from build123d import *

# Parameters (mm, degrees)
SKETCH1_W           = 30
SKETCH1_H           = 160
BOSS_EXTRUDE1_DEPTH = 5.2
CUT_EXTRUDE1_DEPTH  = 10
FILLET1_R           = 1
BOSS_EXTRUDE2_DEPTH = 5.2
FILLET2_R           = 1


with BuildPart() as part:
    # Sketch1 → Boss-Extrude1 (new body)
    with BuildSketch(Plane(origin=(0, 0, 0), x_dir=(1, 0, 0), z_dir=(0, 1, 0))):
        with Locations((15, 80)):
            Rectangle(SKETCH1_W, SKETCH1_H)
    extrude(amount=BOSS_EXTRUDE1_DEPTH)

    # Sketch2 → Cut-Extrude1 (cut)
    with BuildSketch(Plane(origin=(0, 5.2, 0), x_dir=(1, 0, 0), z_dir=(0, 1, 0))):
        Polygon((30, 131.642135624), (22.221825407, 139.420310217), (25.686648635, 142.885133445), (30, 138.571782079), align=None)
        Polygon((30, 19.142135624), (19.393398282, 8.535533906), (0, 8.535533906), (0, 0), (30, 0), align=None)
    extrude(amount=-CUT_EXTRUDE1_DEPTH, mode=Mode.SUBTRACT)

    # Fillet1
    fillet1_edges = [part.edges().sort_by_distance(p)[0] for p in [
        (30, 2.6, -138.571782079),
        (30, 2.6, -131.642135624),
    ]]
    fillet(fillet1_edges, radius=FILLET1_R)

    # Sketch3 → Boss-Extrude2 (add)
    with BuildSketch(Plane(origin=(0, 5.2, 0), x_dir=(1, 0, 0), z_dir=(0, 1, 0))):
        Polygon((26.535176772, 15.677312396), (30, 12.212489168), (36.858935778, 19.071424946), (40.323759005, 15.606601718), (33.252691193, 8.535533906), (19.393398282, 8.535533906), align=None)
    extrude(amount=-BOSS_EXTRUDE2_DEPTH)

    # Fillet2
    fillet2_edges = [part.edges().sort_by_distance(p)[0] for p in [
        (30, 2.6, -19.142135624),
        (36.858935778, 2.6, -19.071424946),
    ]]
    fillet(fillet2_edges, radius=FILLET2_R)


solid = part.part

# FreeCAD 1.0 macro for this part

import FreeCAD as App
import Part
import Sketcher
Q = App.Units.Quantity


def edges_at(feature, points):
    """Names of the edges that pass closest to the given points."""
    edges = feature.Shape.Edges
    near = lambda p: min(range(len(edges)), key=lambda i: edges[i].distToShape(Part.Vertex(*p))[0])
    return sorted({f"Edge{near(p) + 1}" for p in points})


def add_polygon(sketch, points):
    """Adds a closed chain of lines whose ends are joined by coincident constraints."""
    first, n = sketch.GeometryCount, len(points)
    for a, b in zip(points, points[1:] + points[:1]):
        sketch.addGeometry(Part.LineSegment(App.Vector(*a, 0), App.Vector(*b, 0)), False)
    for i in range(n):
        sketch.addConstraint(Sketcher.Constraint("Coincident", first + i, 2, first + (i + 1) % n, 1))

doc = App.newDocument("Part")
body = doc.addObject("PartDesign::Body", "Body")

# Sketch on XZ plane
sketch1 = doc.addObject("Sketcher::SketchObject", "Sketch")
body.addObject(sketch1)
sketch1.AttachmentSupport = (doc.XZ_Plane, [""])
sketch1.MapMode = "FlatFace"
add_polygon(sketch1, [(0, -160), (0, 0), (30, 0), (30, -160)])  # lines 0-3
sketch1.addConstraint([
    Sketcher.Constraint("Vertical", 0),
    Sketcher.Constraint("Horizontal", 1),
    Sketcher.Constraint("Vertical", 2),
    Sketcher.Constraint("Horizontal", 3),
    Sketcher.Constraint("Coincident", 0, 2, -1, 1),
    Sketcher.Constraint("DistanceX", 1, 1, 1, 2, Q("30 mm")),
    Sketcher.Constraint("DistanceY", 0, 1, 0, 2, Q("160 mm")),
])
pad1 = doc.addObject("PartDesign::Pad", "Pad")
body.addObject(pad1)
pad1.Profile = sketch1
pad1.Length = 5.2
pad1.Reversed = True

# Sketch on XZ plane
sketch2 = doc.addObject("Sketcher::SketchObject", "Sketch001")
body.addObject(sketch2)
sketch2.AttachmentSupport = (doc.XZ_Plane, [""])
sketch2.MapMode = "FlatFace"
sketch2.AttachmentOffset = App.Placement(App.Vector(0, 0, -5.2), App.Rotation())
add_polygon(sketch2, [(22.221825, -139.42031), (30, -131.642136), (30, -138.571782), (25.686649, -142.885133)])  # lines 0-3
add_polygon(sketch2, [(30, -19.142136), (19.393398, -8.535534), (0, -8.535534), (0, 0), (30, 0)])  # lines 4-8
sketch2.addConstraint([
    Sketcher.Constraint("Vertical", 1),
    Sketcher.Constraint("Horizontal", 5),
    Sketcher.Constraint("Vertical", 6),
    Sketcher.Constraint("Horizontal", 7),
    Sketcher.Constraint("Vertical", 8),
    Sketcher.Constraint("Coincident", 6, 2, -1, 1),
    Sketcher.Constraint("Parallel", 0, 2),
    Sketcher.Constraint("Perpendicular", 2, 3),
    Sketcher.Constraint("Parallel", 3, 4),
    Sketcher.Constraint("Vertical", 1, 2, 7, 2),
    Sketcher.Constraint("DistanceX", 7, 1, 7, 2, Q("30 mm")),
    Sketcher.Constraint("Angle", 0, Q("45 deg")),
    Sketcher.Constraint("Distance", 0, Q("11 mm")),
    Sketcher.Constraint("Distance", 4, Q("15 mm")),
    Sketcher.Constraint("Distance", 2, Q("6.1 mm")),
    Sketcher.Constraint("DistanceY", 0, 2, 8, 2, Q("112.5 mm")),
    Sketcher.Constraint("DistanceY", 6, 1, 6, 2, Q("8.535534 mm")),
])
pocket1 = doc.addObject("PartDesign::Pocket", "Pocket")
body.addObject(pocket1)
pocket1.Profile = sketch2
pocket1.Length = 10
pocket1.Reversed = True
doc.recompute()

fillet = doc.addObject("PartDesign::Fillet", "Fillet")
body.addObject(fillet)
fillet.Base = (pocket1, edges_at(pocket1, [(30, 2.6, -138.572), (30, 2.6, -131.642)]))
fillet.Radius = 1

# Sketch on XZ plane
sketch3 = doc.addObject("Sketcher::SketchObject", "Sketch002")
body.addObject(sketch3)
sketch3.AttachmentSupport = (doc.XZ_Plane, [""])
sketch3.MapMode = "FlatFace"
sketch3.AttachmentOffset = App.Placement(App.Vector(0, 0, -5.2), App.Rotation())
add_polygon(sketch3, [(30, -12.212489), (26.535177, -15.677312), (19.393398, -8.535534), (33.252691, -8.535534), (40.323759, -15.606602), (36.858936, -19.071425)])  # lines 0-5
sketch3.addConstraint([
    Sketcher.Constraint("Horizontal", 2),
    Sketcher.Constraint("Perpendicular", 0, 1),
    Sketcher.Constraint("Parallel", 1, 3),
    Sketcher.Constraint("Perpendicular", 3, 4),
    Sketcher.Constraint("Perpendicular", 4, 5),
    Sketcher.Constraint("Equal", 0, 4),
    Sketcher.Constraint("Angle", 0, Q("-135 deg")),
    Sketcher.Constraint("Distance", 3, Q("10 mm")),
    Sketcher.Constraint("DistanceX", -1, 1, 5, 2, Q("30 mm")),
    Sketcher.Constraint("Distance", 0, Q("4.9 mm")),
    Sketcher.Constraint("Distance", 1, Q("10.1 mm")),
    Sketcher.Constraint("DistanceY", 3, 2, -1, 1, Q("15.606602 mm")),
])
pad2 = doc.addObject("PartDesign::Pad", "Pad001")
body.addObject(pad2)
pad2.Profile = sketch3
pad2.Length = 5.2
doc.recompute()

fillet2 = doc.addObject("PartDesign::Fillet", "Fillet001")
body.addObject(fillet2)
fillet2.Base = (pad2, edges_at(pad2, [(30, 2.6, -19.142), (36.859, 2.6, -19.071)]))
fillet2.Radius = 1

doc.recompute()
